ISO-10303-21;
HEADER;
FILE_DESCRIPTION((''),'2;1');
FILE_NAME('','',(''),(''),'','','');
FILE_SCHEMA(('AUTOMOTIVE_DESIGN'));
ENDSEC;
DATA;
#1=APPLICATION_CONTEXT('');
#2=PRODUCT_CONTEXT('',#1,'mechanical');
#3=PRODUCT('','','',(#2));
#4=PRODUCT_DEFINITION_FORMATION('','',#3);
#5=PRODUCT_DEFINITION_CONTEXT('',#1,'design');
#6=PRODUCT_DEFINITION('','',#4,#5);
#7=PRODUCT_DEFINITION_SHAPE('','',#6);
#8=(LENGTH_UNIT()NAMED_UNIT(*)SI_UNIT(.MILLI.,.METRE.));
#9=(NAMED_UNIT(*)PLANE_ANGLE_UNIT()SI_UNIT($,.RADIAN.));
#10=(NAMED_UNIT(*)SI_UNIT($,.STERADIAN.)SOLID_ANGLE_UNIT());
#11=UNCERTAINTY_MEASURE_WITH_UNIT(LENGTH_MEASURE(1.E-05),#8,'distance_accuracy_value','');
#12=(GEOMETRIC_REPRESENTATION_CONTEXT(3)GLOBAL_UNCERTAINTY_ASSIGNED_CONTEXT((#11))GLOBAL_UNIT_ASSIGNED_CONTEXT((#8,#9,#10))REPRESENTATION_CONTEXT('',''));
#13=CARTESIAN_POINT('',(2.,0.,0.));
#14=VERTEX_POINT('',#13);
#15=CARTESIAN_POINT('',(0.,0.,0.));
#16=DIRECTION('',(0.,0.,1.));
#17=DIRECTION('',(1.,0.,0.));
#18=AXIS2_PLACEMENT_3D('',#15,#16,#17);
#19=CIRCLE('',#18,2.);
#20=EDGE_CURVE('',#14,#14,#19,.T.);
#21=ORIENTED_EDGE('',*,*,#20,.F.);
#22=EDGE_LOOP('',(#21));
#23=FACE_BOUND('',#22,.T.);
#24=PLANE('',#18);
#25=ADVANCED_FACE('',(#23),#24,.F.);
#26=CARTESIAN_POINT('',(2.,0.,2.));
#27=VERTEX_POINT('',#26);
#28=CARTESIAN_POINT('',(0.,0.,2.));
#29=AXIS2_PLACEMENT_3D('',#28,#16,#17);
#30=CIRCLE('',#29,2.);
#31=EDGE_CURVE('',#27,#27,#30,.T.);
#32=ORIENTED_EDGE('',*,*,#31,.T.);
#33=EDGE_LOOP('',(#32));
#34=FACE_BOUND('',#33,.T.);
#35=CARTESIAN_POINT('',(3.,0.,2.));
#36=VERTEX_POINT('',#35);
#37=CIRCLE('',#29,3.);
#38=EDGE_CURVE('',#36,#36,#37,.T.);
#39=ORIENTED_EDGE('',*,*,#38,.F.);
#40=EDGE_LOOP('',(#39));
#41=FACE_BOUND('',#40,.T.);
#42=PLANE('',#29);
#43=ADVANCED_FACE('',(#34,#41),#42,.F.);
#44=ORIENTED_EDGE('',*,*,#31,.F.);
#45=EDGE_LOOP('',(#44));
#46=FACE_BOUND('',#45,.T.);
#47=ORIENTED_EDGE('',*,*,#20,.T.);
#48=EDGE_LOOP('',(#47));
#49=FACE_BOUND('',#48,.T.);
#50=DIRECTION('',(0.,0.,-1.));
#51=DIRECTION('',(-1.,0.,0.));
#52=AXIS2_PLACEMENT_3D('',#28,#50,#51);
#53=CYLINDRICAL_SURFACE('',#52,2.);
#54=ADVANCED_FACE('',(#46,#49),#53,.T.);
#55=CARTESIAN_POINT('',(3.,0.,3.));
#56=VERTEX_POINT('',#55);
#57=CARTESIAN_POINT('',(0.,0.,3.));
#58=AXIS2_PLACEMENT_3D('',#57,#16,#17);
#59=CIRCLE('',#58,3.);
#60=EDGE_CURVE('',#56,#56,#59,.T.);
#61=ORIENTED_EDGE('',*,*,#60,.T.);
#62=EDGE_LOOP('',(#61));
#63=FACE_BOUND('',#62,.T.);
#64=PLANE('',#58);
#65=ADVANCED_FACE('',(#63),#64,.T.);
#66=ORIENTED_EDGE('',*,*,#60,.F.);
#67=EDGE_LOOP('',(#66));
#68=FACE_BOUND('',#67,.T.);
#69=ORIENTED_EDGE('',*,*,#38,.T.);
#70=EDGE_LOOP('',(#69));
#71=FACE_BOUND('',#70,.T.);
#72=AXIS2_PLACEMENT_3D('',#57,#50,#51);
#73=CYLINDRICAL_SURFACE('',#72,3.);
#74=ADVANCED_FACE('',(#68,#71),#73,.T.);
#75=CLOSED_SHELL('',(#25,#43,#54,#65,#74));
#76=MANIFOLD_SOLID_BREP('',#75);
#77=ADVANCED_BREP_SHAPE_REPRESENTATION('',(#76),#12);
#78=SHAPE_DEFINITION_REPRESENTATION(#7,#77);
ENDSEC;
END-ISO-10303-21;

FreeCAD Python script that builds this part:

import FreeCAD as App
import Part
import Sketcher

V = App.Vector

doc = App.newDocument("Part")
params = doc.addObject("Spreadsheet::Sheet", "Params")
for row, (alias, value) in enumerate([
    ("sketch1_diameter", "4 mm"),
    ("pad1_length", "2 mm"),
    ("sketch2_diameter", "6 mm"),
    ("pad2_length", "1 mm"),
], start=1):
    params.set(f"A{row}", alias)
    params.set(f"B{row}", "=" + value)
    params.setAlias(f"B{row}", alias)

body = doc.addObject("PartDesign::Body", "Body")

# Sketch on XY plane
sketch1 = body.newObject("Sketcher::SketchObject", "Sketch")
sketch1.AttachmentSupport = (doc.getObject("XY_Plane"), [""])
sketch1.MapMode = "FlatFace"
sketch1.addGeometry(Part.Circle(V(0, 0, 0), V(0, 0, 1), 2), False)
sketch1.addConstraint([
    Sketcher.Constraint("Coincident", 0, 3, -1, 1),
    Sketcher.Constraint("Diameter", 0, 4.0),
])
sketch1.setExpression("Constraints[1]", "Params.sketch1_diameter")
pad1 = body.newObject("PartDesign::Pad", "Pad")
pad1.Profile = sketch1
pad1.setExpression("Length", "Params.pad1_length")

# Sketch on XY plane
sketch2 = body.newObject("Sketcher::SketchObject", "Sketch001")
sketch2.AttachmentSupport = (doc.getObject("XY_Plane"), [""])
sketch2.MapMode = "FlatFace"
sketch2.AttachmentOffset = App.Placement(V(0, 0, 2), App.Rotation())
sketch2.addGeometry(Part.Circle(V(0, 0, 0), V(0, 0, 1), 3), False)
sketch2.addConstraint([
    Sketcher.Constraint("Coincident", 0, 3, -1, 1),
    Sketcher.Constraint("Diameter", 0, 6.0),
])
sketch2.setExpression("Constraints[1]", "Params.sketch2_diameter")
pad2 = body.newObject("PartDesign::Pad", "Pad001")
pad2.Profile = sketch2
pad2.setExpression("Length", "Params.pad2_length")

doc.recompute()
